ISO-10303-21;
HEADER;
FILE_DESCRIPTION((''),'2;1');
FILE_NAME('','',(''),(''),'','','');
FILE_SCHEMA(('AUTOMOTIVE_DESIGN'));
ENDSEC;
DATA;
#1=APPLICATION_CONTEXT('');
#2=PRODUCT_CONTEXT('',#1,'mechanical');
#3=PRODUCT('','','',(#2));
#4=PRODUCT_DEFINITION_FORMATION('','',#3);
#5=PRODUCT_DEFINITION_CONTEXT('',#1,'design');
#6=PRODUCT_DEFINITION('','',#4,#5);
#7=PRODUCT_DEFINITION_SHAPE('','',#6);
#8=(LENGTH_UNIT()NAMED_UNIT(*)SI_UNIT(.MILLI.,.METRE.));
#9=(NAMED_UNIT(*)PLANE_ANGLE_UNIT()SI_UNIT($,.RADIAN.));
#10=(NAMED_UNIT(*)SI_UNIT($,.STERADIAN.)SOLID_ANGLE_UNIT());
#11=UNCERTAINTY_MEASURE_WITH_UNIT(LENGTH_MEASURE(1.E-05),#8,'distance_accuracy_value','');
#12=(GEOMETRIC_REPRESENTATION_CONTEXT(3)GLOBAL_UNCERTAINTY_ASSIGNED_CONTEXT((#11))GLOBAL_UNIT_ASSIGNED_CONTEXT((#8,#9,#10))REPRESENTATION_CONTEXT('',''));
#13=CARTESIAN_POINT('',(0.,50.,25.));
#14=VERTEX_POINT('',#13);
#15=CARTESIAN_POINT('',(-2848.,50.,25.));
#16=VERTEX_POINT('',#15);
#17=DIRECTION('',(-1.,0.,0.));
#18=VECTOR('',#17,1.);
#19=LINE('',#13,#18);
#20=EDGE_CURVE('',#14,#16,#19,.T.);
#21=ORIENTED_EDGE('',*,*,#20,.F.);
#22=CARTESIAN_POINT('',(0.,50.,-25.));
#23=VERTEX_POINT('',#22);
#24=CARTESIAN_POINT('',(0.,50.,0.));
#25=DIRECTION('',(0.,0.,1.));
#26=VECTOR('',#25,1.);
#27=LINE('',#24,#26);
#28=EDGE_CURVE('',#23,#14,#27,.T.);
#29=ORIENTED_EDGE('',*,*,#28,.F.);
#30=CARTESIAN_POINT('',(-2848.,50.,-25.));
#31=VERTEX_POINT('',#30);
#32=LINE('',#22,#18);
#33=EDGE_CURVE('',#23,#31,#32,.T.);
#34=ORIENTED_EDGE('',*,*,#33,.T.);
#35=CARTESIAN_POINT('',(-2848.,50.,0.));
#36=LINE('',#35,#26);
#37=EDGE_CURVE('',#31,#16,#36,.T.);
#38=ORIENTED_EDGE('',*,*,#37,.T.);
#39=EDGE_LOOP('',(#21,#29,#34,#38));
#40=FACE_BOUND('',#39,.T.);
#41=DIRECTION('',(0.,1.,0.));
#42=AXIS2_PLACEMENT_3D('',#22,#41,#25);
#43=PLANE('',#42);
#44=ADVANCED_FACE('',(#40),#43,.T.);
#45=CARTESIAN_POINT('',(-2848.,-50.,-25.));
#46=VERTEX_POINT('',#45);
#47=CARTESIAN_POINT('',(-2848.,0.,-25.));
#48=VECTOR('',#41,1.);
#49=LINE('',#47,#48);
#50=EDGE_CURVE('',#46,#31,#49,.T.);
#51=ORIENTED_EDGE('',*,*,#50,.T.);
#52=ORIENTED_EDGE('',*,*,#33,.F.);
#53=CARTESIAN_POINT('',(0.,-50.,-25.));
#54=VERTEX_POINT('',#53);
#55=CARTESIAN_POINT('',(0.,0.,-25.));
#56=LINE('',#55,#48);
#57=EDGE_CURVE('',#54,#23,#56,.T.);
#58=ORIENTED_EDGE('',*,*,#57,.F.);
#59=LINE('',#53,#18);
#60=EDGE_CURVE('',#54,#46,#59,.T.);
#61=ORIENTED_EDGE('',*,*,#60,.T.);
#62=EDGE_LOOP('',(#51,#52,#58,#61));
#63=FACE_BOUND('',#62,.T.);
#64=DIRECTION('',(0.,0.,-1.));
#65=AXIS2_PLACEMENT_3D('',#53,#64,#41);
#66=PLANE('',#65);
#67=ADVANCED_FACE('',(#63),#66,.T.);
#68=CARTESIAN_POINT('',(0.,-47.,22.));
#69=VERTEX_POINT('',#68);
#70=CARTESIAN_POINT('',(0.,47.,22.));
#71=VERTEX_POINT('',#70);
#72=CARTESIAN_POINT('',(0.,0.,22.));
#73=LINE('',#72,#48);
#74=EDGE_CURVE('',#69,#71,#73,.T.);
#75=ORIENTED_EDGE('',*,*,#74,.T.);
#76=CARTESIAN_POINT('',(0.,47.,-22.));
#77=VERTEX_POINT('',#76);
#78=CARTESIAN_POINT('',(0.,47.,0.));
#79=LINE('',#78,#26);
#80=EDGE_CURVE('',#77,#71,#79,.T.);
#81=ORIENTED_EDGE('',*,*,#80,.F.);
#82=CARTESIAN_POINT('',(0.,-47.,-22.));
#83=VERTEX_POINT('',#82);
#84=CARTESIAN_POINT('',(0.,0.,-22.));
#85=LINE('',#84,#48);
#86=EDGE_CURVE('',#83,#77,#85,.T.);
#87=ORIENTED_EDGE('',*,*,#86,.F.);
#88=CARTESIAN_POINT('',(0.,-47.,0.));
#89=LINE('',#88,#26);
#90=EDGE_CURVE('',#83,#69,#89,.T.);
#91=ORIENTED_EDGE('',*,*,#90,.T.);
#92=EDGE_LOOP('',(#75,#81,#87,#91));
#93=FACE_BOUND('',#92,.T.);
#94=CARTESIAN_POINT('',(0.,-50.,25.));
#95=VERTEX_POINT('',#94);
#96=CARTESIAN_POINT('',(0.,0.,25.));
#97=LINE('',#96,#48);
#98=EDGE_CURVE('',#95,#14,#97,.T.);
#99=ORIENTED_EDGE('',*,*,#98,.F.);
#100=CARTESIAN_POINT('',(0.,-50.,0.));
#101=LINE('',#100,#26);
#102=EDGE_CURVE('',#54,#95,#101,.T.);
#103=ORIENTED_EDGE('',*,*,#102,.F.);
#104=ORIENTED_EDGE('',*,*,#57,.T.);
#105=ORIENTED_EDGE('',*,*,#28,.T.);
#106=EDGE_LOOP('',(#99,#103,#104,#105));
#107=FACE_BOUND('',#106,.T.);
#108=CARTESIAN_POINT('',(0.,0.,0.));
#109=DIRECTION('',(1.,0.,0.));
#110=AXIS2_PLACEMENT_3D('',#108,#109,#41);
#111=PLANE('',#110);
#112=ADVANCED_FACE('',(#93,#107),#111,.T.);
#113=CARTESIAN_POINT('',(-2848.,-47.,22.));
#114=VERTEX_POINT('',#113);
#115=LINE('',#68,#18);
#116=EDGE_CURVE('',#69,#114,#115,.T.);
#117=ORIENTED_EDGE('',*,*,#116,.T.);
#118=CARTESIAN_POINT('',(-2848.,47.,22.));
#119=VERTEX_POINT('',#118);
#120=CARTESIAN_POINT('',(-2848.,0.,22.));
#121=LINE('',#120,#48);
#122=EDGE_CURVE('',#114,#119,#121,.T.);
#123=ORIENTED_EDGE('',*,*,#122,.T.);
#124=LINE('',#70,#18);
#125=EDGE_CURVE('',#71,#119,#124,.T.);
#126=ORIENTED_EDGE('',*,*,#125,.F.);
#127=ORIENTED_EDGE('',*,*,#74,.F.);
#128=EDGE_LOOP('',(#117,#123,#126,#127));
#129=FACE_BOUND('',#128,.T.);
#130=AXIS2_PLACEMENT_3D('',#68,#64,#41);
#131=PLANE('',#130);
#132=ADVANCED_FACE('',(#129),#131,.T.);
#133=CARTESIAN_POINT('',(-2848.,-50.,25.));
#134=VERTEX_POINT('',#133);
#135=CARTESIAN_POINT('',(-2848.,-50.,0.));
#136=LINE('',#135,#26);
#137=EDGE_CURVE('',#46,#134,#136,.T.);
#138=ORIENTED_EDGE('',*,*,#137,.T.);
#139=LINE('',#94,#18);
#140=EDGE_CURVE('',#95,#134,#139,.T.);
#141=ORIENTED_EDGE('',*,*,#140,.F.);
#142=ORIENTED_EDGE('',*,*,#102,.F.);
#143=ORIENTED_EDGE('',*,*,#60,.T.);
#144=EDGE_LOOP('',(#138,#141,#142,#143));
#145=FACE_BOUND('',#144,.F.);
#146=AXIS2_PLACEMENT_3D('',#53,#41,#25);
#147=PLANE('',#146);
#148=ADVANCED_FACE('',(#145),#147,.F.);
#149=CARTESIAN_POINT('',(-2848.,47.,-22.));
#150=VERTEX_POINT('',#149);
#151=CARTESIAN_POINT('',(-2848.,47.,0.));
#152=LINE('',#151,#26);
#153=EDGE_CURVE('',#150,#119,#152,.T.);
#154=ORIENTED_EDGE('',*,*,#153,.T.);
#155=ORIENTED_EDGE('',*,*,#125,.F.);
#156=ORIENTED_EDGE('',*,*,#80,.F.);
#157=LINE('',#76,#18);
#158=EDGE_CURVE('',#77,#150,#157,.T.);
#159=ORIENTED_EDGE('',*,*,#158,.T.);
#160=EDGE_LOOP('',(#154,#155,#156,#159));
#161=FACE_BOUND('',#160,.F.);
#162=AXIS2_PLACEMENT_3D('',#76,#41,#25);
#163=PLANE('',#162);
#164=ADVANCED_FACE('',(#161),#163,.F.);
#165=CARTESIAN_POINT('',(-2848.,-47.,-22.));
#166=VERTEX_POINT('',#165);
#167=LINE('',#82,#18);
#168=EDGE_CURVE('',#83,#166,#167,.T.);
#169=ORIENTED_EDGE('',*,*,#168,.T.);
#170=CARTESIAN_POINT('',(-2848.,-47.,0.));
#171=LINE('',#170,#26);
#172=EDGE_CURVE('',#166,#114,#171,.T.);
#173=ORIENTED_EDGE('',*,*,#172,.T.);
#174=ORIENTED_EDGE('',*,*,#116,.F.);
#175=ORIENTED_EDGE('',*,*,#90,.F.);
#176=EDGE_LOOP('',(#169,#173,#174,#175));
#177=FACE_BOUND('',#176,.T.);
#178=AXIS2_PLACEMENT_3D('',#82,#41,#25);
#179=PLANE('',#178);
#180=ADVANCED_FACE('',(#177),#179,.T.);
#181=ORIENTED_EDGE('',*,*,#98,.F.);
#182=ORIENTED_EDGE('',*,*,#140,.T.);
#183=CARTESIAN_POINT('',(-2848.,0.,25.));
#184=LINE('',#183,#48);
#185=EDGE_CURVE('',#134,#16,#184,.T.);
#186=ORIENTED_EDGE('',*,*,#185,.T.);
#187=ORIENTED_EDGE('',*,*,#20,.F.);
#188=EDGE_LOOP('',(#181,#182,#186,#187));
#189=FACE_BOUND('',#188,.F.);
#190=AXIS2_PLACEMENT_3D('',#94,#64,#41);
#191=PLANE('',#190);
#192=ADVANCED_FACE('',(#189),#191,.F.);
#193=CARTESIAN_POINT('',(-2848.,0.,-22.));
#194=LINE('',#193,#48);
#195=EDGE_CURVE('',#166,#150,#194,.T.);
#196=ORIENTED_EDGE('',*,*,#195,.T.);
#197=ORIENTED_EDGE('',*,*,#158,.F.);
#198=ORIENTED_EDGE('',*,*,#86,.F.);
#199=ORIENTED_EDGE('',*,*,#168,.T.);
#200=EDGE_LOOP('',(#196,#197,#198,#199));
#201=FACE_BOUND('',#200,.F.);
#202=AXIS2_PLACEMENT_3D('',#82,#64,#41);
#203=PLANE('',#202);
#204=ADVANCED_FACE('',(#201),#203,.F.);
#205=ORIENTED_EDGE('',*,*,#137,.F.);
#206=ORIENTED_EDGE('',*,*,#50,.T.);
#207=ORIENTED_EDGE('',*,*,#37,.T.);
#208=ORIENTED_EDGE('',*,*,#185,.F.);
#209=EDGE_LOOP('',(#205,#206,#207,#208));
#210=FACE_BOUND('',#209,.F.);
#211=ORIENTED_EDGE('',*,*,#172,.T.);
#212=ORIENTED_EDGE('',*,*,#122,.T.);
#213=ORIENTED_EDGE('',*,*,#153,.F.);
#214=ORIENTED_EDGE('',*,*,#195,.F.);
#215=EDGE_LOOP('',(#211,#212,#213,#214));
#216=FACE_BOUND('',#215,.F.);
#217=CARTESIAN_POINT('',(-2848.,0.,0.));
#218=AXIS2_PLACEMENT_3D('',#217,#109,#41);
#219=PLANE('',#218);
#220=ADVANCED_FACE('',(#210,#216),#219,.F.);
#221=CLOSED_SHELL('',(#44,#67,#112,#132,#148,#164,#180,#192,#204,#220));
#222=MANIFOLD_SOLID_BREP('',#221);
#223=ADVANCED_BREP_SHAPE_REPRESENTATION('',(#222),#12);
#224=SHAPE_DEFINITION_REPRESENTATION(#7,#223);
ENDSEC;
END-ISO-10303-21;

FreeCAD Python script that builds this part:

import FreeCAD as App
import Part
import Sketcher
Q = App.Units.Quantity

doc = App.newDocument("Part")
body = doc.addObject("PartDesign::Body", "Body")

# Sketch on YZ plane
sketch1 = body.newObject("Sketcher::SketchObject", "Sketch")
sketch1.AttachmentSupport = (doc.getObject("YZ_Plane"), [""])
sketch1.MapMode = "FlatFace"
sketch1.addGeometry([
    Part.LineSegment(App.Vector(-50, 25, 0), App.Vector(-50, -25, 0)),  # 0
    Part.LineSegment(App.Vector(-50, -25, 0), App.Vector(50, -25, 0)),  # 1
    Part.LineSegment(App.Vector(50, -25, 0), App.Vector(50, 25, 0)),  # 2
    Part.LineSegment(App.Vector(50, 25, 0), App.Vector(-50, 25, 0)),  # 3
    Part.LineSegment(App.Vector(47, -22, 0), App.Vector(-47, -22, 0)),  # 4
    Part.LineSegment(App.Vector(-47, -22, 0), App.Vector(-47, 22, 0)),  # 5
    Part.LineSegment(App.Vector(-47, 22, 0), App.Vector(47, 22, 0)),  # 6
    Part.LineSegment(App.Vector(47, 22, 0), App.Vector(47, -22, 0)),  # 7
], False)
sketch1.addConstraint([
    Sketcher.Constraint("Coincident", 0, 2, 1, 1),
    Sketcher.Constraint("Coincident", 1, 2, 2, 1),
    Sketcher.Constraint("Coincident", 2, 2, 3, 1),
    Sketcher.Constraint("Coincident", 3, 2, 0, 1),
    Sketcher.Constraint("Coincident", 4, 2, 5, 1),
    Sketcher.Constraint("Coincident", 5, 2, 6, 1),
    Sketcher.Constraint("Coincident", 6, 2, 7, 1),
    Sketcher.Constraint("Coincident", 7, 2, 4, 1),
    Sketcher.Constraint("Vertical", 0),
    Sketcher.Constraint("Horizontal", 1),
    Sketcher.Constraint("Vertical", 2),
    Sketcher.Constraint("Horizontal", 3),
    Sketcher.Constraint("Horizontal", 4),
    Sketcher.Constraint("Vertical", 5),
    Sketcher.Constraint("Horizontal", 6),
    Sketcher.Constraint("Vertical", 7),
    Sketcher.Constraint("Symmetric", 0, 2, 2, 2, -1, 1),
    Sketcher.Constraint("Symmetric", 4, 2, 6, 2, -1, 1),
    Sketcher.Constraint("DistanceX", 1, 1, 1, 2, Q("100 mm")),
    Sketcher.Constraint("DistanceX", 4, 2, 4, 1, Q("94 mm")),
    Sketcher.Constraint("DistanceY", 0, 2, 0, 1, Q("50 mm")),
    Sketcher.Constraint("DistanceY", 5, 1, 5, 2, Q("44 mm")),
])
pad1 = body.newObject("PartDesign::Pad", "Pad")
pad1.Profile = sketch1
pad1.Length = 2848
pad1.Reversed = True

doc.recompute()
